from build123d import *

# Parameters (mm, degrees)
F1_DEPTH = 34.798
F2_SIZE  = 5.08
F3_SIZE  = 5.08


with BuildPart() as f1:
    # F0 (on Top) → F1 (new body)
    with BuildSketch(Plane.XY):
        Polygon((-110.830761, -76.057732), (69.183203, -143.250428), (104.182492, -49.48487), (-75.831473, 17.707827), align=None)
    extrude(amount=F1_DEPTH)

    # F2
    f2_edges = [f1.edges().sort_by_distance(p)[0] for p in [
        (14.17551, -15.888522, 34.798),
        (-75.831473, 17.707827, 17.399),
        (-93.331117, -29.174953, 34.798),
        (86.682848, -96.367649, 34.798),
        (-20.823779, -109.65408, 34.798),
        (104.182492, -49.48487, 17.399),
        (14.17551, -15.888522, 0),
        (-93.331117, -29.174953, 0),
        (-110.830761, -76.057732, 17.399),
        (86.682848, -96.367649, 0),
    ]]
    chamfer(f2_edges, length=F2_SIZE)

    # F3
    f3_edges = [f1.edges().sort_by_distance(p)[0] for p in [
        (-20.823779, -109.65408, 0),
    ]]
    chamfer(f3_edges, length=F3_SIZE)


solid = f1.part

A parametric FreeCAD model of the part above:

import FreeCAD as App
import Part
import Sketcher
from FreeCAD import Vector
Q = App.Units.Quantity


def edges_at(feature, points):
    """Names of the edges that pass closest to the given points."""
    edges = feature.Shape.Edges
    near = lambda p: min(range(len(edges)), key=lambda i: edges[i].distToShape(Part.Vertex(*p))[0])
    return sorted({f"Edge{near(p) + 1}" for p in points})

doc = App.newDocument("Part")
body = doc.addObject("PartDesign::Body", "Body")

sketch1 = body.newObject("Sketcher::SketchObject", "Sketch")
sketch1.AttachmentSupport = (doc.getObject("XY_Plane"), [""])
sketch1.MapMode = "FlatFace"
sketch1.addGeometry([
    Part.LineSegment(Vector(-111, -76, 0), Vector(69, -143, 0)),
    Part.LineSegment(Vector(69, -143, 0), Vector(104, -49, 0)),
    Part.LineSegment(Vector(104, -49, 0), Vector(-76, 18, 0)),
    Part.LineSegment(Vector(-76, 18, 0), Vector(-111, -76, 0)),
], False)
sketch1.addConstraint([
    Sketcher.Constraint("Coincident", 0, 2, 1, 1),
    Sketcher.Constraint("Coincident", 1, 2, 2, 1),
    Sketcher.Constraint("Coincident", 2, 2, 3, 1),
    Sketcher.Constraint("Coincident", 3, 2, 0, 1),
    Sketcher.Constraint("Perpendicular", 0, 1),
    Sketcher.Constraint("Perpendicular", 1, 2),
    Sketcher.Constraint("Perpendicular", 2, 3),
    Sketcher.Constraint("Distance", 0, 192.14548),
    Sketcher.Constraint("DistanceY", 0, 2, -1, 1, 143.250428),
    Sketcher.Constraint("DistanceX", -1, 1, 1, 2, 104.182492),
    Sketcher.Constraint("DistanceY", 1, 2, -1, 1, 49.48487),
    Sketcher.Constraint("DistanceX", 3, 2, -1, 1, 110.830761),
])
pad1 = body.newObject("PartDesign::Pad", "Pad")
pad1.Profile = sketch1
pad1.Length = Q("1.37 in")
doc.recompute()

chamfer = body.newObject("PartDesign::Chamfer", "Chamfer")
chamfer.Base = (pad1, edges_at(pad1, [
    (14.176, -15.889, 34.798),
    (-75.831, 17.708, 17.399),
    (-93.331, -29.175, 34.798),
    (86.683, -96.368, 34.798),
    (-20.824, -109.654, 34.798),
    (104.182, -49.485, 17.399),
    (14.176, -15.889, 0),
    (-93.331, -29.175, 0),
    (-110.831, -76.058, 17.399),
    (86.683, -96.368, 0),
]))
chamfer.Size = Q("0.2 in")
doc.recompute()

chamfer2 = body.newObject("PartDesign::Chamfer", "Chamfer001")
chamfer2.Base = (chamfer, edges_at(chamfer, [(-20.824, -109.654, 0)]))
chamfer2.Size = Q("0.2 in")

doc.recompute()
